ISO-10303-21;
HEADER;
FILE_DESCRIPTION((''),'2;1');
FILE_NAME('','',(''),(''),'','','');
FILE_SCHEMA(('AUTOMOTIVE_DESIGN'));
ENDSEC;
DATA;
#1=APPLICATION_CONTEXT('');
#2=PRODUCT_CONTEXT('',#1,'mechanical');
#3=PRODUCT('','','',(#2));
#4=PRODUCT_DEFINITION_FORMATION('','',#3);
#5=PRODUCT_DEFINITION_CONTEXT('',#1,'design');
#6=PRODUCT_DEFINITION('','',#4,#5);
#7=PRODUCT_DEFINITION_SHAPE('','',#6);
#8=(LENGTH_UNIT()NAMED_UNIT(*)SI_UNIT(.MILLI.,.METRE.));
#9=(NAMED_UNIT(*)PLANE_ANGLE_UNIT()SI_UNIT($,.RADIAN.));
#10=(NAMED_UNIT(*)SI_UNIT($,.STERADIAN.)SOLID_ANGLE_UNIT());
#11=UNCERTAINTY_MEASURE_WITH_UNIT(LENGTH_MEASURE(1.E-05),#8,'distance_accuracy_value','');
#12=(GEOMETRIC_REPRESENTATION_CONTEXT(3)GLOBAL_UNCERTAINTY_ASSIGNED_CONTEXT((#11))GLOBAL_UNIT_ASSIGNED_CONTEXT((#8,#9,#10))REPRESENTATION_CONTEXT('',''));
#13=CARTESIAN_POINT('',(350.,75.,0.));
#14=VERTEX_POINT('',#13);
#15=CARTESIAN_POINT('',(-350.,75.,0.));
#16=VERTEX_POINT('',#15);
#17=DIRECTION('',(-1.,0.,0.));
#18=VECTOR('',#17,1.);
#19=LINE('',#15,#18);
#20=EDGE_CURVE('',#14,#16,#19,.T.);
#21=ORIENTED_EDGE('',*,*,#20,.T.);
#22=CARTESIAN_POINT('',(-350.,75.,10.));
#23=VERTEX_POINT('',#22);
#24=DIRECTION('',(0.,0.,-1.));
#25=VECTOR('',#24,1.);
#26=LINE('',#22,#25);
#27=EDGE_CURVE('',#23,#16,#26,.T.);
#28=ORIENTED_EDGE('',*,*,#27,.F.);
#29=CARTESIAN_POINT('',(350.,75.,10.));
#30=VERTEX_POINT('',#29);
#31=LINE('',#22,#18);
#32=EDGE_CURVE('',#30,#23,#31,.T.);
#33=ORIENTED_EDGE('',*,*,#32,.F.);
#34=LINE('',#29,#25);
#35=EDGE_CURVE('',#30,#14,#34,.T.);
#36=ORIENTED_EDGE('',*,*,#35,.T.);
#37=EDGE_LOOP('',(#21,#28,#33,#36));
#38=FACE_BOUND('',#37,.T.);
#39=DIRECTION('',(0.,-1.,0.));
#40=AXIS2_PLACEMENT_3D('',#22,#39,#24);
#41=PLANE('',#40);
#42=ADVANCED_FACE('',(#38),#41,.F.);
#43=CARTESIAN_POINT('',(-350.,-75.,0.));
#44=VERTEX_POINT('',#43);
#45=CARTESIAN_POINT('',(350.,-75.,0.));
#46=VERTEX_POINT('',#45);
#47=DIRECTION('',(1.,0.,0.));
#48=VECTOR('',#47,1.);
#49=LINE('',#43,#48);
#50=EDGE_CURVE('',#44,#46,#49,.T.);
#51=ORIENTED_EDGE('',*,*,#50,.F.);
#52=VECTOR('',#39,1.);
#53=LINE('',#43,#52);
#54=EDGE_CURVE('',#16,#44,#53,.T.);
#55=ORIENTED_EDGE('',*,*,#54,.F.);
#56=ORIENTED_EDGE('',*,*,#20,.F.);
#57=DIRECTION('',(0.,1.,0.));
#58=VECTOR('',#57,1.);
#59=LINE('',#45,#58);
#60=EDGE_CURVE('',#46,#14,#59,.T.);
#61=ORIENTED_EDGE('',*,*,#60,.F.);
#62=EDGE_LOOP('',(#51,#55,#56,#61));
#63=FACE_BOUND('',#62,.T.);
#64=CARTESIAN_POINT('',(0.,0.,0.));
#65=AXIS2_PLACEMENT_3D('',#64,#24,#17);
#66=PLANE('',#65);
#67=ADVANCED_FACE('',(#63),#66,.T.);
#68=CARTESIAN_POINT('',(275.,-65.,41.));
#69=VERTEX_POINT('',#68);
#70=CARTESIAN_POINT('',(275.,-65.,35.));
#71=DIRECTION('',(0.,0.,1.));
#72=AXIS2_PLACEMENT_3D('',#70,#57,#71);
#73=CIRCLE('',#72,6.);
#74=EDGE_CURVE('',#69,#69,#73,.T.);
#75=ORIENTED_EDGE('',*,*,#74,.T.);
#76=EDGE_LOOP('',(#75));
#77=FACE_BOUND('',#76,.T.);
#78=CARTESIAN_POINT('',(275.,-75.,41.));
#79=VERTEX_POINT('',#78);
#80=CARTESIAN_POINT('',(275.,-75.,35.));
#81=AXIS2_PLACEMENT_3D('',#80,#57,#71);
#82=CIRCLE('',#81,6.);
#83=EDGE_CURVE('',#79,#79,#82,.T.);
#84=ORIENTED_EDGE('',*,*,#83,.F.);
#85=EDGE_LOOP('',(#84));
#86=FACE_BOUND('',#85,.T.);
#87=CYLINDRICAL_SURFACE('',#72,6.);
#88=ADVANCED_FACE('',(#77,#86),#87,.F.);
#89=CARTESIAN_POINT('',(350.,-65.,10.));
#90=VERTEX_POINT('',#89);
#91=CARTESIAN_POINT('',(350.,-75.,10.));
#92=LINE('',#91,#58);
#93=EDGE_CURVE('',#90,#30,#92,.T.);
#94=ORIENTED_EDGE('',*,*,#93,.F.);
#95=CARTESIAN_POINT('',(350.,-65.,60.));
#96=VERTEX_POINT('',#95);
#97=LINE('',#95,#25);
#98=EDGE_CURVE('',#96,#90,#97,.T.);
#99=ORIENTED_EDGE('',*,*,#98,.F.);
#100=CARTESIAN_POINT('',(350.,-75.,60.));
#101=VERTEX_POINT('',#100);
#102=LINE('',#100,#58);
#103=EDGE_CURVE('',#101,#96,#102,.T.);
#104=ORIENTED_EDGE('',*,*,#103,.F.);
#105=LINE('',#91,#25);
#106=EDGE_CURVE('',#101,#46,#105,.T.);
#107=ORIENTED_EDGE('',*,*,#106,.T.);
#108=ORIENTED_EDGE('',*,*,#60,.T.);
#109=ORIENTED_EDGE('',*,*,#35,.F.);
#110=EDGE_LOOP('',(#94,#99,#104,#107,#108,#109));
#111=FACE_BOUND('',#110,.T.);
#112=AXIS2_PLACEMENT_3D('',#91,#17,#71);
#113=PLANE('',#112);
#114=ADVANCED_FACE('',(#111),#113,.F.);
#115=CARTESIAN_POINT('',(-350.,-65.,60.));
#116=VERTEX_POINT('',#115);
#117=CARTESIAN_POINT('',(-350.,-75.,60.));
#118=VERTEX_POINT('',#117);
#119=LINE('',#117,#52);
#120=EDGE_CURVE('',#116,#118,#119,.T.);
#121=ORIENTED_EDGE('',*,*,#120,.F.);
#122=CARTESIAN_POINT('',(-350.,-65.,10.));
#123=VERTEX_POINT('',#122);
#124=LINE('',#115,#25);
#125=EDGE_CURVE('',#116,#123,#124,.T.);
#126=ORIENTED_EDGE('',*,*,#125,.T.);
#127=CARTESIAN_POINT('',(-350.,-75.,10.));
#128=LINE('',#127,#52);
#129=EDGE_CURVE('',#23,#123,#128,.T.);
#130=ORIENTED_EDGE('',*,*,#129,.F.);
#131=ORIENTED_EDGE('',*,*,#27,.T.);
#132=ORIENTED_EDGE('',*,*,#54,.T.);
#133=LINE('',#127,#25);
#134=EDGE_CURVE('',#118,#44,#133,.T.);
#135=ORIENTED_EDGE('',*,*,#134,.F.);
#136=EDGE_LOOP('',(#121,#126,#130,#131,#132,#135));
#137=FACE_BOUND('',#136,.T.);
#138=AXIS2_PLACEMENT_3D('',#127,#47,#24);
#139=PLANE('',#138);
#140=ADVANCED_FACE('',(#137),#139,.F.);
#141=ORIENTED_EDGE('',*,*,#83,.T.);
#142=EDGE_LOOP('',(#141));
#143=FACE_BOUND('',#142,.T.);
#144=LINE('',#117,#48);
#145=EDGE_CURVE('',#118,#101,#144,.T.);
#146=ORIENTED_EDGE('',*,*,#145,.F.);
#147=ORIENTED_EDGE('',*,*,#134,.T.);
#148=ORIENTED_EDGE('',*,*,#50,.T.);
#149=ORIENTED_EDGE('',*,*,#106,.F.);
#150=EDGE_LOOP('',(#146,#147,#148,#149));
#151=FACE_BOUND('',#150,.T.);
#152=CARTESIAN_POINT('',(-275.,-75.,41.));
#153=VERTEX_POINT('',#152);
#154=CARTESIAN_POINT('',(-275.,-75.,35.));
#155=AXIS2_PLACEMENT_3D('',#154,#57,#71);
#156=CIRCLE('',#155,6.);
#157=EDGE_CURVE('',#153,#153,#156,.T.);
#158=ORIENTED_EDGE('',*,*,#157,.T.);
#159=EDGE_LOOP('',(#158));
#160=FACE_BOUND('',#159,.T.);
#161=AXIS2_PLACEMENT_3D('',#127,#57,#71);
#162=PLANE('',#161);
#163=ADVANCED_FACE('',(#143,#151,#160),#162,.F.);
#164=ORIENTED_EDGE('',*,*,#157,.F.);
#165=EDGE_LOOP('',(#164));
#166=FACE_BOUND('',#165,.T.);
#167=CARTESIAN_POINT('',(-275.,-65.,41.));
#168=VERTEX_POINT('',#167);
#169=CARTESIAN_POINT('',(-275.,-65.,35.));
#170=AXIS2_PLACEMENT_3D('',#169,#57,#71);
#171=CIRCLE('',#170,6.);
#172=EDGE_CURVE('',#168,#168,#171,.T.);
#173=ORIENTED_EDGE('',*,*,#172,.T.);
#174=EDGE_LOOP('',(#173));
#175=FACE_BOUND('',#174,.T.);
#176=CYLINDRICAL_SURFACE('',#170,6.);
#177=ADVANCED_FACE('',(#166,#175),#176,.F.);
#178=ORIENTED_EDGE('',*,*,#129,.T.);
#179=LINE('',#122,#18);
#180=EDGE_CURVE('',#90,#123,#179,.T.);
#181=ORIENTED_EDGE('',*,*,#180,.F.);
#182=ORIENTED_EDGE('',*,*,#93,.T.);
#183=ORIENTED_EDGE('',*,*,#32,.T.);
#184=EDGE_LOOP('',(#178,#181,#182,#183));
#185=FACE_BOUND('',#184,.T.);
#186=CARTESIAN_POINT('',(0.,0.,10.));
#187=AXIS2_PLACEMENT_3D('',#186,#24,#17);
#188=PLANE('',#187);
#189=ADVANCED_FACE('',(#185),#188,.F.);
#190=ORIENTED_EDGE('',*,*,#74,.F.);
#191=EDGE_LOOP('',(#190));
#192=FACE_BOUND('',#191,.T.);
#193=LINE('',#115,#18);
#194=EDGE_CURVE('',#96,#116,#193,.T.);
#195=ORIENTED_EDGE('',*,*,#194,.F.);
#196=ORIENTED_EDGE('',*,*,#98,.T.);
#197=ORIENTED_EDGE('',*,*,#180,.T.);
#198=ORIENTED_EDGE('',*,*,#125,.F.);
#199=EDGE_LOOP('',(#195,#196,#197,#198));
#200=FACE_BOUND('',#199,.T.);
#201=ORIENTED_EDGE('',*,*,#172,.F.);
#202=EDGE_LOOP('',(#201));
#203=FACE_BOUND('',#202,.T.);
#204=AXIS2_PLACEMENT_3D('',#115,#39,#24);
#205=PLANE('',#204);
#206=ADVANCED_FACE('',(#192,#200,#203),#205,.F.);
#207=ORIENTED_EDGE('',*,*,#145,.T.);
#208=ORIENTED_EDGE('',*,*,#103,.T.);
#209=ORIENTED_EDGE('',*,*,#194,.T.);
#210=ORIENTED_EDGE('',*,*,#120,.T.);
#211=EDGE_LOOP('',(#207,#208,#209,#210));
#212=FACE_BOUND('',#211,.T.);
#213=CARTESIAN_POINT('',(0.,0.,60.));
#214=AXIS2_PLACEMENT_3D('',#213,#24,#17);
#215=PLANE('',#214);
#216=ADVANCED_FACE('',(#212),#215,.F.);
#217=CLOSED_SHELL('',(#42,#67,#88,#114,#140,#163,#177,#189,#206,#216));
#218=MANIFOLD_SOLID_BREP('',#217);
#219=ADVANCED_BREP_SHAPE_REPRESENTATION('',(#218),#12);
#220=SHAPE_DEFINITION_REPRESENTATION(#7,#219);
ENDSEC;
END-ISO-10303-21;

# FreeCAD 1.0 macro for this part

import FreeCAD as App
import Part
import Sketcher

doc = App.newDocument("Part")
body = doc.addObject("PartDesign::Body", "Body")

sketch1 = body.newObject("Sketcher::SketchObject", "Sketch")
sketch1.AttachmentSupport = (doc.getObject("XY_Plane"), [""])
sketch1.MapMode = "FlatFace"
sketch1.addGeometry([
    Part.LineSegment(App.Vector(-350, 75, 0), App.Vector(-350, -75, 0)),
    Part.LineSegment(App.Vector(-350, -75, 0), App.Vector(350, -75, 0)),
    Part.LineSegment(App.Vector(350, -75, 0), App.Vector(350, 75, 0)),
    Part.LineSegment(App.Vector(350, 75, 0), App.Vector(-350, 75, 0)),
], False)
sketch1.addConstraint([
    Sketcher.Constraint("Coincident", 0, 2, 1, 1),
    Sketcher.Constraint("Coincident", 1, 2, 2, 1),
    Sketcher.Constraint("Coincident", 2, 2, 3, 1),
    Sketcher.Constraint("Coincident", 3, 2, 0, 1),
    Sketcher.Constraint("Vertical", 0),
    Sketcher.Constraint("Horizontal", 1),
    Sketcher.Constraint("Vertical", 2),
    Sketcher.Constraint("Horizontal", 3),
    Sketcher.Constraint("Symmetric", 0, 2, 2, 2, -1, 1),
    Sketcher.Constraint("DistanceX", 1, 1, 1, 2, 700.0),
    Sketcher.Constraint("DistanceY", 0, 2, 0, 1, 150.0),
])
pad1 = body.newObject("PartDesign::Pad", "Pad")
pad1.Profile = sketch1
pad1.Length = 10

sketch2 = body.newObject("Sketcher::SketchObject", "Sketch001")
sketch2.AttachmentSupport = (doc.getObject("XY_Plane"), [""])
sketch2.MapMode = "FlatFace"
sketch2.AttachmentOffset = App.Placement(App.Vector(0, 0, 10), App.Rotation())
sketch2.addGeometry([
    Part.LineSegment(App.Vector(-350, -65, 0), App.Vector(-350, -75, 0)),
    Part.LineSegment(App.Vector(-350, -75, 0), App.Vector(350, -75, 0)),
    Part.LineSegment(App.Vector(350, -75, 0), App.Vector(350, -65, 0)),
    Part.LineSegment(App.Vector(350, -65, 0), App.Vector(-350, -65, 0)),
], False)
sketch2.addConstraint([
    Sketcher.Constraint("Coincident", 0, 2, 1, 1),
    Sketcher.Constraint("Coincident", 1, 2, 2, 1),
    Sketcher.Constraint("Coincident", 2, 2, 3, 1),
    Sketcher.Constraint("Coincident", 3, 2, 0, 1),
    Sketcher.Constraint("Vertical", 0),
    Sketcher.Constraint("Horizontal", 1),
    Sketcher.Constraint("Vertical", 2),
    Sketcher.Constraint("Horizontal", 3),
    Sketcher.Constraint("DistanceX", 1, 1, 1, 2, 700.0),
    Sketcher.Constraint("DistanceY", 0, 2, 0, 1, 10.0),
    Sketcher.Constraint("DistanceX", 0, 2, -1, 1, 350.0),
    Sketcher.Constraint("DistanceY", 0, 2, -1, 1, 75.0),
])
pad2 = body.newObject("PartDesign::Pad", "Pad001")
pad2.Profile = sketch2
pad2.Length = 50

sketch3 = body.newObject("Sketcher::SketchObject", "Sketch002")
sketch3.AttachmentSupport = (doc.getObject("XZ_Plane"), [""])
sketch3.MapMode = "FlatFace"
sketch3.AttachmentOffset = App.Placement(App.Vector(0, 0, 65), App.Rotation())
sketch3.addGeometry(Part.Circle(App.Vector(-275, 35, 0), App.Vector(0, 0, 1), 6), False)
sketch3.addConstraint([
    Sketcher.Constraint("Diameter", 0, 12.0),
    Sketcher.Constraint("DistanceX", 0, 3, -1, 1, 275.0),
    Sketcher.Constraint("DistanceY", -1, 1, 0, 3, 35.0),
])
doc.recompute()
hole = body.newObject("PartDesign::Hole", "Hole")
hole.Profile = sketch3
hole.ThreadType = "None"
hole.Diameter = 12
hole.DepthType = "ThroughAll"
hole.Reversed = True
doc.recompute()

linearpattern = body.newObject("PartDesign::LinearPattern", "LinearPattern")
linearpattern.Originals = [hole]
linearpattern.Direction = (doc.getObject("X_Axis"), [""])
linearpattern.Mode = "offset"
linearpattern.Offset = 550
linearpattern.Occurrences = 2
body.Tip = linearpattern

doc.recompute()
